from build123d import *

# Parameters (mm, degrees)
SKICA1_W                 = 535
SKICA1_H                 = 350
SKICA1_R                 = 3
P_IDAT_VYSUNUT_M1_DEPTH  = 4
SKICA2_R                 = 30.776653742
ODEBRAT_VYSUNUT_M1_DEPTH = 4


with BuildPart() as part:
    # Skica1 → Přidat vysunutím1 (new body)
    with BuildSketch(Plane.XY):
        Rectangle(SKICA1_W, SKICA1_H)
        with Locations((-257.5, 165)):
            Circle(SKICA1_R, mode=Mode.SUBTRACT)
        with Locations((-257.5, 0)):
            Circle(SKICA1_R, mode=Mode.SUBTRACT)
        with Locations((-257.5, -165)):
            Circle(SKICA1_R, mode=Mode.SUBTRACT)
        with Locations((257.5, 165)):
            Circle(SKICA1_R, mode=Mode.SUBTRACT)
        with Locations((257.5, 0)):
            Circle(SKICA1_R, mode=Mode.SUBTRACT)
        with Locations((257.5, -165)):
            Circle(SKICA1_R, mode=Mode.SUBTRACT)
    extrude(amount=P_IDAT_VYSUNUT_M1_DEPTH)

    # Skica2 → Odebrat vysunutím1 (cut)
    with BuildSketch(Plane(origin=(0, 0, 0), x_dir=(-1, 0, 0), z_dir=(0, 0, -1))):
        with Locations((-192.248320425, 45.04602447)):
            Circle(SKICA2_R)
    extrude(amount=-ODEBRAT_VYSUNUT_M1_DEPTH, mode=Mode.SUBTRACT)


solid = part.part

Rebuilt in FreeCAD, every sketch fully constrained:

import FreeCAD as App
import Part
import Sketcher
Q = App.Units.Quantity


def add_polygon(sketch, points):
    """Adds a closed chain of lines whose ends are joined by coincident constraints."""
    first, n = sketch.GeometryCount, len(points)
    for a, b in zip(points, points[1:] + points[:1]):
        sketch.addGeometry(Part.LineSegment(App.Vector(*a, 0), App.Vector(*b, 0)), False)
    for i in range(n):
        sketch.addConstraint(Sketcher.Constraint("Coincident", first + i, 2, first + (i + 1) % n, 1))

doc = App.newDocument("Part")
body = doc.addObject("PartDesign::Body", "Body")

sketch1 = doc.addObject("Sketcher::SketchObject", "Sketch")
body.addObject(sketch1)
sketch1.AttachmentSupport = (doc.XY_Plane, [""])
sketch1.MapMode = "FlatFace"
add_polygon(sketch1, [(-267.5, 175), (-267.5, -175), (267.5, -175), (267.5, 175)])
sketch1.addGeometry(Part.Circle(App.Vector(-257.5, -165, 0), App.Vector(0, 0, 1), 3), False)
sketch1.addGeometry(Part.Circle(App.Vector(257.5, -165, 0), App.Vector(0, 0, 1), 3), False)
sketch1.addGeometry(Part.Circle(App.Vector(-257.5, 0, 0), App.Vector(0, 0, 1), 3), False)
sketch1.addGeometry(Part.Circle(App.Vector(-257.5, 165, 0), App.Vector(0, 0, 1), 3), False)
sketch1.addGeometry(Part.Circle(App.Vector(257.5, 0, 0), App.Vector(0, 0, 1), 3), False)
sketch1.addGeometry(Part.Circle(App.Vector(257.5, 165, 0), App.Vector(0, 0, 1), 3), False)
sketch1.addConstraint([
    Sketcher.Constraint("Vertical", 0),
    Sketcher.Constraint("Horizontal", 1),
    Sketcher.Constraint("Vertical", 2),
    Sketcher.Constraint("Horizontal", 3),
    Sketcher.Constraint("Equal", 4, 5),
    Sketcher.Constraint("Equal", 5, 6),
    Sketcher.Constraint("Equal", 6, 7),
    Sketcher.Constraint("Equal", 7, 8),
    Sketcher.Constraint("Equal", 8, 9),
    Sketcher.Constraint("Symmetric", 5, 3, 7, 3, -1, 1),
    Sketcher.Constraint("Symmetric", 6, 3, 8, 3, -1, 1),
    Sketcher.Constraint("Symmetric", 4, 3, 9, 3, -1, 1),
    Sketcher.Constraint("Symmetric", 0, 2, 2, 2, -1, 1),
    Sketcher.Constraint("Symmetric", 4, 3, 5, 3, -2),
    Sketcher.Constraint("PointOnObject", 6, 3, -1),
    Sketcher.Constraint("Vertical", 4, 3, 6, 3),
    Sketcher.Constraint("Diameter", 4, Q("6 mm")),
    Sketcher.Constraint("DistanceX", 1, 1, 1, 2, Q("535 mm")),
    Sketcher.Constraint("DistanceY", 0, 2, 0, 1, Q("350 mm")),
    Sketcher.Constraint("DistanceY", 4, 3, -1, 1, Q("165 mm")),
    Sketcher.Constraint("DistanceX", 4, 3, 5, 3, Q("515 mm")),
])
pad1 = doc.addObject("PartDesign::Pad", "Pad")
body.addObject(pad1)
pad1.Profile = sketch1
pad1.Length = 4

sketch2 = doc.addObject("Sketcher::SketchObject", "Sketch001")
body.addObject(sketch2)
sketch2.AttachmentSupport = (doc.XY_Plane, [""])
sketch2.MapMode = "FlatFace"
sketch2.addGeometry(Part.Circle(App.Vector(192, 45, 0), App.Vector(0, 0, 1), 31), False)
sketch2.addConstraint([
    Sketcher.Constraint("Diameter", 0, Q("61.553307 mm")),
    Sketcher.Constraint("DistanceX", -1, 1, 0, 3, Q("192.24832 mm")),
    Sketcher.Constraint("DistanceY", -1, 1, 0, 3, Q("45.046024 mm")),
])
pocket1 = doc.addObject("PartDesign::Pocket", "Pocket")
body.addObject(pocket1)
pocket1.Profile = sketch2
pocket1.Length = 4
pocket1.Reversed = True

doc.recompute()
